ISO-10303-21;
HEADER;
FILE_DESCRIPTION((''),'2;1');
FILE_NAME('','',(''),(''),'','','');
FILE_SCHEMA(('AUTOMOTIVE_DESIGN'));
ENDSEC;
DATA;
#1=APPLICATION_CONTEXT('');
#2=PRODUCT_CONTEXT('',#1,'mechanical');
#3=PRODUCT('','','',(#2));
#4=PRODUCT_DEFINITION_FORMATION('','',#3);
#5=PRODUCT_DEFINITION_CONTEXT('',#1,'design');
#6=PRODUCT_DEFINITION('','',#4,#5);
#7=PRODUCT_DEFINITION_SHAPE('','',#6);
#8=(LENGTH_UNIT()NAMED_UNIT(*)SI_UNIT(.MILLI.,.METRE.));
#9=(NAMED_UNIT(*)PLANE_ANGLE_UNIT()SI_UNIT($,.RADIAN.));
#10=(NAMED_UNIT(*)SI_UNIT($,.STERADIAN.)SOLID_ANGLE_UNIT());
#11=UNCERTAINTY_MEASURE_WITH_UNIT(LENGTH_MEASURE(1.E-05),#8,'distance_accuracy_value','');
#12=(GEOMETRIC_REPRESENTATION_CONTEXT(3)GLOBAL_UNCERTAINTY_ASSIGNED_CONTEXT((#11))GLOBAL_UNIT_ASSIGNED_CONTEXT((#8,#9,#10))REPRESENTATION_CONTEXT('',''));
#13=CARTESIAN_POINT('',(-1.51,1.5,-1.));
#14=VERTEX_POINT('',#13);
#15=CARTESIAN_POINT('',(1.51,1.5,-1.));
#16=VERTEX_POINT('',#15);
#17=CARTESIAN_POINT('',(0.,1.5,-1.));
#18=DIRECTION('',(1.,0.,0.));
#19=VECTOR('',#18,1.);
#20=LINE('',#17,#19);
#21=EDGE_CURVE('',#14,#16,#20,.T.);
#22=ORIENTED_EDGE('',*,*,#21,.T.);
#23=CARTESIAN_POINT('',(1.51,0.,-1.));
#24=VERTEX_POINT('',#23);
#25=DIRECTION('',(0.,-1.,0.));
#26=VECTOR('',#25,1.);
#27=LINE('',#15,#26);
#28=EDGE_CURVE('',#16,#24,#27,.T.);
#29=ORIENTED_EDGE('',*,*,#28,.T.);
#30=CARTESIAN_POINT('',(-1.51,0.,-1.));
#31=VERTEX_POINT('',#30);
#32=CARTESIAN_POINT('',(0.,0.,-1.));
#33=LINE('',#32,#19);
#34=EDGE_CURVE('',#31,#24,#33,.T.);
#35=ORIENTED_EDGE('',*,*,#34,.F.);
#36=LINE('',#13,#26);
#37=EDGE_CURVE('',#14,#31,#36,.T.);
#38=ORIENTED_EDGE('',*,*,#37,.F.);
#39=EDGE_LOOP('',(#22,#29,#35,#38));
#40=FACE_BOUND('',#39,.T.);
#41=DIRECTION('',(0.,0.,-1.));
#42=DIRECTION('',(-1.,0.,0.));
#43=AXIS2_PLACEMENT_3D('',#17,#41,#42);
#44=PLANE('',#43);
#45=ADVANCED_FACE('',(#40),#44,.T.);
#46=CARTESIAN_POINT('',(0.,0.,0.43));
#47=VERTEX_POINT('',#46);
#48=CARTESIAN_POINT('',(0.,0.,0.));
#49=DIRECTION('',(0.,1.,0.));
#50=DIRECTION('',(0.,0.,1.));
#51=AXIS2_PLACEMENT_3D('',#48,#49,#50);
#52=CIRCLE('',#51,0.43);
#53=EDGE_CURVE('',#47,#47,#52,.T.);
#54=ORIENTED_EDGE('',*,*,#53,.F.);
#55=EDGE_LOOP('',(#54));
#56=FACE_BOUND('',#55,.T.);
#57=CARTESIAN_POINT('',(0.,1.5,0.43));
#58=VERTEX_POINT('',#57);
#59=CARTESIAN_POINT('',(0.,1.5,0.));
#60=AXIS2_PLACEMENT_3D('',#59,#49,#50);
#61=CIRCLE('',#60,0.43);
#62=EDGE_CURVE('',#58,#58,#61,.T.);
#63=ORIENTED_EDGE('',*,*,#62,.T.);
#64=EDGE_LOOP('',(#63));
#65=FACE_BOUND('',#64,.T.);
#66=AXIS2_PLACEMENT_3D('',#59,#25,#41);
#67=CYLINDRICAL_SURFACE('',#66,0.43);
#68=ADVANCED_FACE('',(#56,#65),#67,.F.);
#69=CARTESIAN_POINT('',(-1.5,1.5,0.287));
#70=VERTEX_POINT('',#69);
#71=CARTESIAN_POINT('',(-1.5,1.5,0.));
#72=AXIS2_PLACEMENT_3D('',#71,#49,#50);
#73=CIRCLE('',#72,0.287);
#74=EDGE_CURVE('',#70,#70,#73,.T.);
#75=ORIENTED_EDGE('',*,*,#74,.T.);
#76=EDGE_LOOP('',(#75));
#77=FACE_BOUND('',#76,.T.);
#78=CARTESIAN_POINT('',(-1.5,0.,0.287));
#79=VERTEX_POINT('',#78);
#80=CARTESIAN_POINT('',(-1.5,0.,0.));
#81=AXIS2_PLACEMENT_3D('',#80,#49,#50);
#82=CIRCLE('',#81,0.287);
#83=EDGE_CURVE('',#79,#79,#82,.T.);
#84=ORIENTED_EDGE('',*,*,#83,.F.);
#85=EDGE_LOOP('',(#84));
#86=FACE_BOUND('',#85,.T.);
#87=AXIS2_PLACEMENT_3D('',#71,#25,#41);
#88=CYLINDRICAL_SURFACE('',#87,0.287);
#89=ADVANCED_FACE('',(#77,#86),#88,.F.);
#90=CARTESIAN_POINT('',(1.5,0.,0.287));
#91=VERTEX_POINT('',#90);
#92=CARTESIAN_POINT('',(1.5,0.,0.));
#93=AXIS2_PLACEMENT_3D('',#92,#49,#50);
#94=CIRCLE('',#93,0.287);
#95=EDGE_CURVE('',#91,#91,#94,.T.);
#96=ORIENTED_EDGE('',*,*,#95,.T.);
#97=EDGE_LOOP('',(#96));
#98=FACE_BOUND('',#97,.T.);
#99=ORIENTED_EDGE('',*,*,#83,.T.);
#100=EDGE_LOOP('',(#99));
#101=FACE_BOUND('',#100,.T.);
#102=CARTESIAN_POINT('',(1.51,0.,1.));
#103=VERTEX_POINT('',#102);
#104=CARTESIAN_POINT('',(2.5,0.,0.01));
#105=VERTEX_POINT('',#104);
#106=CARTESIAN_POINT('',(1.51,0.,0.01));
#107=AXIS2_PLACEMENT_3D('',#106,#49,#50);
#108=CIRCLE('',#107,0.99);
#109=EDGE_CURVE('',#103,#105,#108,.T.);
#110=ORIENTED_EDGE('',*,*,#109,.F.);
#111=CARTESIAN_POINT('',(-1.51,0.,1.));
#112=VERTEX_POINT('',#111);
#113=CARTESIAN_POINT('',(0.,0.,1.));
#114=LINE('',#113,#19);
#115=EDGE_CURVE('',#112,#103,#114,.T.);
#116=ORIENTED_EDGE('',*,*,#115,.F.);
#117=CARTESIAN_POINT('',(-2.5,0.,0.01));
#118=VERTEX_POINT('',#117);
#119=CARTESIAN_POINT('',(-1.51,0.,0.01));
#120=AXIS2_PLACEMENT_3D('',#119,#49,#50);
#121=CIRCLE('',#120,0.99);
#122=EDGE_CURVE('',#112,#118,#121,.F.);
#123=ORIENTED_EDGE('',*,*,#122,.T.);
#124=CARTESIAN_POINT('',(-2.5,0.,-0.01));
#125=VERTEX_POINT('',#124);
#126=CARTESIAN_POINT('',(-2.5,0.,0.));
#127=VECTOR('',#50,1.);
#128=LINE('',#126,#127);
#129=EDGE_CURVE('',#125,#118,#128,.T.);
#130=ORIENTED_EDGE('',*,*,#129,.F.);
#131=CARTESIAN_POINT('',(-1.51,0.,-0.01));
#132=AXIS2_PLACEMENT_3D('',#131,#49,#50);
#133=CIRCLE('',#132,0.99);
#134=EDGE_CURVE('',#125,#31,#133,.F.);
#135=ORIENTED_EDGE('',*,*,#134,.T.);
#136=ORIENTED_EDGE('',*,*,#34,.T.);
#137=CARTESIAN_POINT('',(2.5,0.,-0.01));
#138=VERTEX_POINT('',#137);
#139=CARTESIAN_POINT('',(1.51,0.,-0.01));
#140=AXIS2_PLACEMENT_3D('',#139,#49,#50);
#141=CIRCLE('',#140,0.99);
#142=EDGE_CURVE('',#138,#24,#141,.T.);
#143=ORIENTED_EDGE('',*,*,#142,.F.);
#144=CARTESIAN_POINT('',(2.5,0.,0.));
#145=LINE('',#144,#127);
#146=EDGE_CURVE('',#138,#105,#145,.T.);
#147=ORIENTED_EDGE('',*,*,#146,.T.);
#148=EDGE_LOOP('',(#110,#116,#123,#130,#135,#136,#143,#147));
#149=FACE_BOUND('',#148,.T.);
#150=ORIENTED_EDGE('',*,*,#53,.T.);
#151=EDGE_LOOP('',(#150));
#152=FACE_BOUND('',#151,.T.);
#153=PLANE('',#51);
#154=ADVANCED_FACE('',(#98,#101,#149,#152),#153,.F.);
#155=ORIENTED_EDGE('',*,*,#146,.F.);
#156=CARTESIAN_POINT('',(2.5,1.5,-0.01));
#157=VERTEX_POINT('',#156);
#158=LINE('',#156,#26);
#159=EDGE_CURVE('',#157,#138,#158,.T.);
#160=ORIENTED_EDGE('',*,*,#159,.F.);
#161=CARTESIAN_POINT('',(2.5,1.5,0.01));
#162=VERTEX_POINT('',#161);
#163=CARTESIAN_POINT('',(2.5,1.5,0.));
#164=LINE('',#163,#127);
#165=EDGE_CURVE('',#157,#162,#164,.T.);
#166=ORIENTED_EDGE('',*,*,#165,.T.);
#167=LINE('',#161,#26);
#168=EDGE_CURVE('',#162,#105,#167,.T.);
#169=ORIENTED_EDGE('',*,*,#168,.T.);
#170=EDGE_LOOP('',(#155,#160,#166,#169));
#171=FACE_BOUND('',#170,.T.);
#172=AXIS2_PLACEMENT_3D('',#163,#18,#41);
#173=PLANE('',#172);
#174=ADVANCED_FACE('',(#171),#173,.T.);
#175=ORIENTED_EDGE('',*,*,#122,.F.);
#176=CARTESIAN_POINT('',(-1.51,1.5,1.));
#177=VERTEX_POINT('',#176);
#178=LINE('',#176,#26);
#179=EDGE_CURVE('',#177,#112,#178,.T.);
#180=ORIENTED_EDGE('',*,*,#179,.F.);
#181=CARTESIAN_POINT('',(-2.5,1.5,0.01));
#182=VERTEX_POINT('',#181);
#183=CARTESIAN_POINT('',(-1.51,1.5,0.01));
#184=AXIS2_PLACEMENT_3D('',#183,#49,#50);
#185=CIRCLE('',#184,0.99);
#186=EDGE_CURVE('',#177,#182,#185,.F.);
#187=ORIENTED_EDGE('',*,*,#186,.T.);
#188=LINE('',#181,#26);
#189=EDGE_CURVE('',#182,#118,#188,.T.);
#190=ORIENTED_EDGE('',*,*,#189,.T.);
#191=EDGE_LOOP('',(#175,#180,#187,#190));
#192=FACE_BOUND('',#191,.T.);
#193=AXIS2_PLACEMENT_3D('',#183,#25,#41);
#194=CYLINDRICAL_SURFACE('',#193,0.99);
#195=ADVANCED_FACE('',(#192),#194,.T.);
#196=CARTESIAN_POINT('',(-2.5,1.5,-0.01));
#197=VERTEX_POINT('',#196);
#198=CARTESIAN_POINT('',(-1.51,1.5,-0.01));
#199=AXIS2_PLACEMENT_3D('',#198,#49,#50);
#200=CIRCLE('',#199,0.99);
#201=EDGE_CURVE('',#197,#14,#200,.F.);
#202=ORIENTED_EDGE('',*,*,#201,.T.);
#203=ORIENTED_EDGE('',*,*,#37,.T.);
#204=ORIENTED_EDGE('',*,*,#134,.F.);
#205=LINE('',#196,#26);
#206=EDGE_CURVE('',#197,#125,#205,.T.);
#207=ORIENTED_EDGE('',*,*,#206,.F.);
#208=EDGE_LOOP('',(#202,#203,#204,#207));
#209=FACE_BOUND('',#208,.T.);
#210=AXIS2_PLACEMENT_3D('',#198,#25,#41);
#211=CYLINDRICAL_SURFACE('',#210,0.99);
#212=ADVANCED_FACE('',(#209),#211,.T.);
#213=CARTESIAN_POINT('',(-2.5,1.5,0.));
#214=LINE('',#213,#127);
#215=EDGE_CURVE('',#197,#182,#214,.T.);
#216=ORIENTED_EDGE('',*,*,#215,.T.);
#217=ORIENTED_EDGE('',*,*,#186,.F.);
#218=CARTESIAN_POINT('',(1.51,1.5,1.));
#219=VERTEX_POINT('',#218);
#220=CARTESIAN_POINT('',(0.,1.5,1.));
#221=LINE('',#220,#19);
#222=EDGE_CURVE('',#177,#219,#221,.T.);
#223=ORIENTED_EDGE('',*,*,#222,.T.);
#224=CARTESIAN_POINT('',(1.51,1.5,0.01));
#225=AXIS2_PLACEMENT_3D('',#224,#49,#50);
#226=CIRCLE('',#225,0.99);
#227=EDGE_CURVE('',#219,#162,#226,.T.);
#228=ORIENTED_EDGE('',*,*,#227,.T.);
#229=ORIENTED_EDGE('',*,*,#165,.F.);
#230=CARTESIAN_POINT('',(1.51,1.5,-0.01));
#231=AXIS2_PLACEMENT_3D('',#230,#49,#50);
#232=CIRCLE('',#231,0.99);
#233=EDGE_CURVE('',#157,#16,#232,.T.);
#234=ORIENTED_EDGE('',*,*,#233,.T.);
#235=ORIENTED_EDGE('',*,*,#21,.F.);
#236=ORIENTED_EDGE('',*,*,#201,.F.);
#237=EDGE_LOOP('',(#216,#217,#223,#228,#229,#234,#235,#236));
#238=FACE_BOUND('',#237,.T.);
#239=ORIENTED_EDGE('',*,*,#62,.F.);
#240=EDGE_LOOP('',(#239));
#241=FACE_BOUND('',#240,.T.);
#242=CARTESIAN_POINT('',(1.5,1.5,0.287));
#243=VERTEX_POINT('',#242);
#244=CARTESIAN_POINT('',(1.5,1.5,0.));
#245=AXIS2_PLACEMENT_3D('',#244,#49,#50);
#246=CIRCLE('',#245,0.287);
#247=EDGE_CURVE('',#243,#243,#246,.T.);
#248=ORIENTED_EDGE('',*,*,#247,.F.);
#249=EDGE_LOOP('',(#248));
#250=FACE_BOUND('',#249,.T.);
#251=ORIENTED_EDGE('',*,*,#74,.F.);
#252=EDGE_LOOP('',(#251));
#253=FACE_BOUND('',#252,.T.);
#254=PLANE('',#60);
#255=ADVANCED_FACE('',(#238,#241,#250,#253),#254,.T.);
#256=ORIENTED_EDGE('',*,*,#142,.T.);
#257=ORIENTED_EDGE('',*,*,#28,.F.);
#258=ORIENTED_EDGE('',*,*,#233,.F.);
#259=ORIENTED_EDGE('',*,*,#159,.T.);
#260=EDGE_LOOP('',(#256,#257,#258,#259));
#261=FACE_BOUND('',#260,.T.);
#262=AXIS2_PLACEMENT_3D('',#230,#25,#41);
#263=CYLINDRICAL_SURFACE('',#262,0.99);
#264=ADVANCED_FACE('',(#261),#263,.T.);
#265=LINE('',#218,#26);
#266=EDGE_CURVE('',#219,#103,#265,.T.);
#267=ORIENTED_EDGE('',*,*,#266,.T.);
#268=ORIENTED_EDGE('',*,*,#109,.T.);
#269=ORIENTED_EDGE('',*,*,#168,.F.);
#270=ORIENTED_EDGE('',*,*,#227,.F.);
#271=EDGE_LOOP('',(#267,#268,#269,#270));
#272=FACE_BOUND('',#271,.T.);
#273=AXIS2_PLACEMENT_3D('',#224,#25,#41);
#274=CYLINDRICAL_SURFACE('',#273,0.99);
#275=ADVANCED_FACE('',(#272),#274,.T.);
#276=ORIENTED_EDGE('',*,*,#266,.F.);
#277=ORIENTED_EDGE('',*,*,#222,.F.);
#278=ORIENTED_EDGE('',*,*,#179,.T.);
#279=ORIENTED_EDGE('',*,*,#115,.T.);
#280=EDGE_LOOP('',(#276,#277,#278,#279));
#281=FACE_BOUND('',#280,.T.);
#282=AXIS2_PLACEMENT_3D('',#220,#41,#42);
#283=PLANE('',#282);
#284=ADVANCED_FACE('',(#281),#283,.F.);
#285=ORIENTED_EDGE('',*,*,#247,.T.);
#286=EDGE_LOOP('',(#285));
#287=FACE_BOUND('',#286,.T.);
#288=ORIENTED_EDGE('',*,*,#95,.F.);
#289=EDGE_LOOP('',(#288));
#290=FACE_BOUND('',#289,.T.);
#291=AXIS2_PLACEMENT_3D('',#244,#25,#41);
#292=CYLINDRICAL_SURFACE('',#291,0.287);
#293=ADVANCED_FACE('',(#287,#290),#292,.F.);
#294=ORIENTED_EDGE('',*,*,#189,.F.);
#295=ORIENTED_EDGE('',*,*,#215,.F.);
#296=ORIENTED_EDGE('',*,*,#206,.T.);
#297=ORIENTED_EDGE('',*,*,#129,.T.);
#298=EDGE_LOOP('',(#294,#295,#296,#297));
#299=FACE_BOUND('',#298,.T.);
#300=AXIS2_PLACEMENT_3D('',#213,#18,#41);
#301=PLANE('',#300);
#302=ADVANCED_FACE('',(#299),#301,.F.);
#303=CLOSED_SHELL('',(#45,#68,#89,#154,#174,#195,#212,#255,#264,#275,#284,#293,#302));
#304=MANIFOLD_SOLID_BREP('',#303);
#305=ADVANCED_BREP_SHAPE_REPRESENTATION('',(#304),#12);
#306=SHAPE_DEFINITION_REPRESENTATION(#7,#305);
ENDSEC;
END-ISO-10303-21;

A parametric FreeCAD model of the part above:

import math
import FreeCAD as App
import Part
import Sketcher

V = App.Vector
Q = App.Units.Quantity

doc = App.newDocument("Part")
params = doc.addObject("Spreadsheet::Sheet", "Params")
for row, (alias, value) in enumerate([
    ("sketch1_diameter", "0.86 mm"),
    ("sketch1_radius", "0.99 mm"),
    ("pad1_length", "1.5 mm"),
], start=1):
    params.set(f"A{row}", alias)
    params.set(f"B{row}", "=" + value)
    params.setAlias(f"B{row}", alias)

body = doc.addObject("PartDesign::Body", "Body")

sketch1 = body.newObject("Sketcher::SketchObject", "Sketch")
sketch1.AttachmentSupport = (doc.getObject("XZ_Plane"), [""])
sketch1.MapMode = "FlatFace"
sketch1.addGeometry([
    Part.LineSegment(V(1.51, -1, 0), V(-1.51, -1, 0)),
    Part.ArcOfCircle(Part.Circle(V(-1.51, -0.01, 0), V(0, 0, 1), 0.99), math.radians(-180), math.radians(-90)),
    Part.LineSegment(V(-2.5, -0.01, 0), V(-2.5, 0.01, 0)),
    Part.ArcOfCircle(Part.Circle(V(-1.51, 0.01, 0), V(0, 0, 1), 0.99), math.radians(90), math.radians(180)),
    Part.LineSegment(V(-1.51, 1, 0), V(1.51, 1, 0)),
    Part.ArcOfCircle(Part.Circle(V(1.51, 0.01, 0), V(0, 0, 1), 0.99), math.radians(0), math.radians(90)),
    Part.LineSegment(V(2.5, 0.01, 0), V(2.5, -0.01, 0)),
    Part.ArcOfCircle(Part.Circle(V(1.51, -0.01, 0), V(0, 0, 1), 0.99), math.radians(-90), math.radians(0)),
    Part.Circle(V(1.5, 0, 0), V(0, 0, 1), 0.287),
    Part.Circle(V(0, 0, 0), V(0, 0, 1), 0.43),
    Part.Circle(V(-1.5, 0, 0), V(0, 0, 1), 0.287),
], False)
sketch1.addConstraint([
    Sketcher.Constraint("Tangent", 0, 2, 1, 2),
    Sketcher.Constraint("Tangent", 1, 1, 2, 1),
    Sketcher.Constraint("Tangent", 2, 2, 3, 2),
    Sketcher.Constraint("Tangent", 3, 1, 4, 1),
    Sketcher.Constraint("Tangent", 4, 2, 5, 2),
    Sketcher.Constraint("Tangent", 5, 1, 6, 1),
    Sketcher.Constraint("Tangent", 6, 2, 7, 2),
    Sketcher.Constraint("Tangent", 7, 1, 0, 1),
    Sketcher.Constraint("Horizontal", 0),
    Sketcher.Constraint("Vertical", 2),
    Sketcher.Constraint("Horizontal", 4),
    Sketcher.Constraint("Vertical", 6),
    Sketcher.Constraint("Coincident", 9, 3, -1, 1),
    Sketcher.Constraint("Equal", 1, 3),
    Sketcher.Constraint("Equal", 3, 5),
    Sketcher.Constraint("Equal", 5, 7),
    Sketcher.Constraint("Equal", 8, 10),
    Sketcher.Constraint("Symmetric", 1, 3, 5, 3, -1, 1),
    Sketcher.Constraint("Symmetric", 8, 3, 10, 3, -1, 1),
    Sketcher.Constraint("PointOnObject", 8, 3, -1),
    Sketcher.Constraint("Diameter", 9, Q("0.86 mm")),
    Sketcher.Constraint("Radius", 1, Q("0.99 mm")),
    Sketcher.Constraint("Diameter", 8, Q("0.574 mm")),
    Sketcher.Constraint("DistanceY", 0, 2, -1, 1, Q("1 mm")),
    Sketcher.Constraint("DistanceX", 10, 3, 8, 3, Q("3 mm")),
    Sketcher.Constraint("DistanceX", 1, 1, 10, 3, Q("1 mm")),
])
sketch1.setExpression("Constraints[20]", "Params.sketch1_diameter")
sketch1.setExpression("Constraints[21]", "Params.sketch1_radius")
pad1 = body.newObject("PartDesign::Pad", "Pad")
pad1.Profile = sketch1
pad1.setExpression("Length", "Params.pad1_length")
pad1.Reversed = True

doc.recompute()
